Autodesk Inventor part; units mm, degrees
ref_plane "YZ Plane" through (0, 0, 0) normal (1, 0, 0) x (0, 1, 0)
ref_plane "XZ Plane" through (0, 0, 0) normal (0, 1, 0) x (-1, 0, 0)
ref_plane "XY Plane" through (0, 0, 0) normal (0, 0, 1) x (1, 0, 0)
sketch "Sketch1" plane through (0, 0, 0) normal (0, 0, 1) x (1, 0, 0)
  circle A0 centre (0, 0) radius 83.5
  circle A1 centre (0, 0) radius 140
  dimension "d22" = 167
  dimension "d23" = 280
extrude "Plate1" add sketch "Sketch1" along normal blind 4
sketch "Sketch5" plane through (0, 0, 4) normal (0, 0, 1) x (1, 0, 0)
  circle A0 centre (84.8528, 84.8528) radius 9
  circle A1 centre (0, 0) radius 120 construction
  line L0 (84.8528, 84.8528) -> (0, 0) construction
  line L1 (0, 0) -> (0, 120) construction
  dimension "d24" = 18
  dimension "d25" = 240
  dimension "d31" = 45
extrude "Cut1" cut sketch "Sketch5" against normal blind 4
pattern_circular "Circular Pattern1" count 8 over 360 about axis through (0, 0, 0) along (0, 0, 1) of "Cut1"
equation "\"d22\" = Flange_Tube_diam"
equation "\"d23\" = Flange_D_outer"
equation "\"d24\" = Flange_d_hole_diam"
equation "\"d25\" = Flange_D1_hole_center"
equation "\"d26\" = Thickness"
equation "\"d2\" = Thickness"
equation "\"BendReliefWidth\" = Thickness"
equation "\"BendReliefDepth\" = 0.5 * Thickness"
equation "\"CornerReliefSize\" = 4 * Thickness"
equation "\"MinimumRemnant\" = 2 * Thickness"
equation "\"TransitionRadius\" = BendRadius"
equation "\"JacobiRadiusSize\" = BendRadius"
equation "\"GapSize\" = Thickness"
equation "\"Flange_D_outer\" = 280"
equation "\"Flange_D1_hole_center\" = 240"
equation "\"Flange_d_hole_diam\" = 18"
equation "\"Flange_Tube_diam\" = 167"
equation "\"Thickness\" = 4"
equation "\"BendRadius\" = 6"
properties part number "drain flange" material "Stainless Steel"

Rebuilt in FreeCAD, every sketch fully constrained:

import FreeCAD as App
import Part
import Sketcher
from FreeCAD import Vector

doc = App.newDocument("Part")
body = doc.addObject("PartDesign::Body", "Body")

sketch1 = body.newObject("Sketcher::SketchObject", "Sketch")
sketch1.AttachmentSupport = (doc.getObject("XY_Plane"), [""])
sketch1.MapMode = "FlatFace"
sketch1.addGeometry([
    Part.Circle(Vector(0, 0, 0), Vector(0, 0, 1), 140),
    Part.Circle(Vector(0, 0, 0), Vector(0, 0, 1), 83.5),
], False)
sketch1.addConstraint([
    Sketcher.Constraint("Coincident", 0, 3, -1, 1),
    Sketcher.Constraint("Coincident", 1, 3, -1, 1),
    Sketcher.Constraint("Diameter", 0, 280.0),
    Sketcher.Constraint("Diameter", 1, 167.0),
])
pad1 = body.newObject("PartDesign::Pad", "Pad")
pad1.Profile = sketch1
pad1.Length = 4

sketch2 = body.newObject("Sketcher::SketchObject", "Sketch001")
sketch2.AttachmentSupport = (doc.getObject("XY_Plane"), [""])
sketch2.MapMode = "FlatFace"
sketch2.AttachmentOffset = App.Placement(Vector(0, 0, 4), App.Rotation())
sketch2.addGeometry(Part.Circle(Vector(84.8528, 84.8528, 0), Vector(0, 0, 1), 9), False)
sketch2.addConstraint([
    Sketcher.Constraint("Diameter", 0, 18.0),
    Sketcher.Constraint("DistanceX", -1, 1, 0, 3, 84.8528),
    Sketcher.Constraint("DistanceY", -1, 1, 0, 3, 84.8528),
])
pocket1 = body.newObject("PartDesign::Pocket", "Pocket")
pocket1.Profile = sketch2
pocket1.Length = 4
doc.recompute()

polarpattern = body.newObject("PartDesign::PolarPattern", "PolarPattern")
polarpattern.Originals = [pocket1]
polarpattern.Axis = (doc.getObject("Z_Axis"), [""])
polarpattern.Angle = 360
polarpattern.Occurrences = 8
body.Tip = polarpattern

doc.recompute()
